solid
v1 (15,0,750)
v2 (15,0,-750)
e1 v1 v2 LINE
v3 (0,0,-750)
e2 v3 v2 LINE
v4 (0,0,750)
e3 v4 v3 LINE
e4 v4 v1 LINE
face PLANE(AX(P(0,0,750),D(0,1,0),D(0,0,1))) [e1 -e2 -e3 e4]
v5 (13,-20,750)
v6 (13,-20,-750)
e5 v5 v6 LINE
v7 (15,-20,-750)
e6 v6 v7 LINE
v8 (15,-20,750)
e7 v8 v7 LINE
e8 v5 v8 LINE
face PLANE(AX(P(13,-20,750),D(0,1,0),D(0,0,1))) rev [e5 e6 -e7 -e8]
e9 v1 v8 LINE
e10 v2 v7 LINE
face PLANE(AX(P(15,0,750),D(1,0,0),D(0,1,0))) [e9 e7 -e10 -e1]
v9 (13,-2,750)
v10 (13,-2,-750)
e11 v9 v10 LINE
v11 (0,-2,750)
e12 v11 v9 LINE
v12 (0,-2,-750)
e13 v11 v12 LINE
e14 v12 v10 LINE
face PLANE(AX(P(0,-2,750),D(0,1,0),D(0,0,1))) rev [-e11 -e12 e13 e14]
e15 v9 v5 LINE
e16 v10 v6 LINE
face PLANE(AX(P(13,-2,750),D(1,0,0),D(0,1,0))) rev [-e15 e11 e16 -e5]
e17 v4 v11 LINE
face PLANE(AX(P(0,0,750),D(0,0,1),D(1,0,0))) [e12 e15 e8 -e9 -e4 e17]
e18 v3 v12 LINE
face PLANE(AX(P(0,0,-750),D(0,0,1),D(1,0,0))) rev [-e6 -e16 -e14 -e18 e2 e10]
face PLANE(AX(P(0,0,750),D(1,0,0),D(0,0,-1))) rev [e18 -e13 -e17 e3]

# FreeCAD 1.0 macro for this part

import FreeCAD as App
import Part
import Sketcher

V = App.Vector


def add_polygon(sketch, points):
    """Adds a closed chain of lines whose ends are joined by coincident constraints."""
    first, n = sketch.GeometryCount, len(points)
    for a, b in zip(points, points[1:] + points[:1]):
        sketch.addGeometry(Part.LineSegment(App.Vector(*a, 0), App.Vector(*b, 0)), False)
    for i in range(n):
        sketch.addConstraint(Sketcher.Constraint("Coincident", first + i, 2, first + (i + 1) % n, 1))

doc = App.newDocument("Part")
body = doc.addObject("PartDesign::Body", "Body")

# Sketch on XY plane
sketch1 = body.newObject("Sketcher::SketchObject", "Sketch")
sketch1.AttachmentSupport = (doc.getObject("XY_Plane"), [""])
sketch1.MapMode = "FlatFace"
add_polygon(sketch1, [(15, 0), (0, 0), (0, -2), (13, -2), (13, -20), (15, -20)])  # lines 0-5
sketch1.addConstraint([
    Sketcher.Constraint("Horizontal", 0),
    Sketcher.Constraint("Vertical", 1),
    Sketcher.Constraint("Horizontal", 2),
    Sketcher.Constraint("Vertical", 3),
    Sketcher.Constraint("Horizontal", 4),
    Sketcher.Constraint("Vertical", 5),
    Sketcher.Constraint("Coincident", 0, 2, -1, 1),
    Sketcher.Constraint("Equal", 4, 1),
    Sketcher.Constraint("DistanceX", 0, 2, 0, 1, 15.0),
    Sketcher.Constraint("DistanceX", 2, 1, 2, 2, 13.0),
    Sketcher.Constraint("DistanceY", 3, 2, 3, 1, 18.0),
])
pad1 = body.newObject("PartDesign::Pad", "Pad")
pad1.Profile = sketch1
pad1.Length = 1500
pad1.Midplane = True

doc.recompute()
